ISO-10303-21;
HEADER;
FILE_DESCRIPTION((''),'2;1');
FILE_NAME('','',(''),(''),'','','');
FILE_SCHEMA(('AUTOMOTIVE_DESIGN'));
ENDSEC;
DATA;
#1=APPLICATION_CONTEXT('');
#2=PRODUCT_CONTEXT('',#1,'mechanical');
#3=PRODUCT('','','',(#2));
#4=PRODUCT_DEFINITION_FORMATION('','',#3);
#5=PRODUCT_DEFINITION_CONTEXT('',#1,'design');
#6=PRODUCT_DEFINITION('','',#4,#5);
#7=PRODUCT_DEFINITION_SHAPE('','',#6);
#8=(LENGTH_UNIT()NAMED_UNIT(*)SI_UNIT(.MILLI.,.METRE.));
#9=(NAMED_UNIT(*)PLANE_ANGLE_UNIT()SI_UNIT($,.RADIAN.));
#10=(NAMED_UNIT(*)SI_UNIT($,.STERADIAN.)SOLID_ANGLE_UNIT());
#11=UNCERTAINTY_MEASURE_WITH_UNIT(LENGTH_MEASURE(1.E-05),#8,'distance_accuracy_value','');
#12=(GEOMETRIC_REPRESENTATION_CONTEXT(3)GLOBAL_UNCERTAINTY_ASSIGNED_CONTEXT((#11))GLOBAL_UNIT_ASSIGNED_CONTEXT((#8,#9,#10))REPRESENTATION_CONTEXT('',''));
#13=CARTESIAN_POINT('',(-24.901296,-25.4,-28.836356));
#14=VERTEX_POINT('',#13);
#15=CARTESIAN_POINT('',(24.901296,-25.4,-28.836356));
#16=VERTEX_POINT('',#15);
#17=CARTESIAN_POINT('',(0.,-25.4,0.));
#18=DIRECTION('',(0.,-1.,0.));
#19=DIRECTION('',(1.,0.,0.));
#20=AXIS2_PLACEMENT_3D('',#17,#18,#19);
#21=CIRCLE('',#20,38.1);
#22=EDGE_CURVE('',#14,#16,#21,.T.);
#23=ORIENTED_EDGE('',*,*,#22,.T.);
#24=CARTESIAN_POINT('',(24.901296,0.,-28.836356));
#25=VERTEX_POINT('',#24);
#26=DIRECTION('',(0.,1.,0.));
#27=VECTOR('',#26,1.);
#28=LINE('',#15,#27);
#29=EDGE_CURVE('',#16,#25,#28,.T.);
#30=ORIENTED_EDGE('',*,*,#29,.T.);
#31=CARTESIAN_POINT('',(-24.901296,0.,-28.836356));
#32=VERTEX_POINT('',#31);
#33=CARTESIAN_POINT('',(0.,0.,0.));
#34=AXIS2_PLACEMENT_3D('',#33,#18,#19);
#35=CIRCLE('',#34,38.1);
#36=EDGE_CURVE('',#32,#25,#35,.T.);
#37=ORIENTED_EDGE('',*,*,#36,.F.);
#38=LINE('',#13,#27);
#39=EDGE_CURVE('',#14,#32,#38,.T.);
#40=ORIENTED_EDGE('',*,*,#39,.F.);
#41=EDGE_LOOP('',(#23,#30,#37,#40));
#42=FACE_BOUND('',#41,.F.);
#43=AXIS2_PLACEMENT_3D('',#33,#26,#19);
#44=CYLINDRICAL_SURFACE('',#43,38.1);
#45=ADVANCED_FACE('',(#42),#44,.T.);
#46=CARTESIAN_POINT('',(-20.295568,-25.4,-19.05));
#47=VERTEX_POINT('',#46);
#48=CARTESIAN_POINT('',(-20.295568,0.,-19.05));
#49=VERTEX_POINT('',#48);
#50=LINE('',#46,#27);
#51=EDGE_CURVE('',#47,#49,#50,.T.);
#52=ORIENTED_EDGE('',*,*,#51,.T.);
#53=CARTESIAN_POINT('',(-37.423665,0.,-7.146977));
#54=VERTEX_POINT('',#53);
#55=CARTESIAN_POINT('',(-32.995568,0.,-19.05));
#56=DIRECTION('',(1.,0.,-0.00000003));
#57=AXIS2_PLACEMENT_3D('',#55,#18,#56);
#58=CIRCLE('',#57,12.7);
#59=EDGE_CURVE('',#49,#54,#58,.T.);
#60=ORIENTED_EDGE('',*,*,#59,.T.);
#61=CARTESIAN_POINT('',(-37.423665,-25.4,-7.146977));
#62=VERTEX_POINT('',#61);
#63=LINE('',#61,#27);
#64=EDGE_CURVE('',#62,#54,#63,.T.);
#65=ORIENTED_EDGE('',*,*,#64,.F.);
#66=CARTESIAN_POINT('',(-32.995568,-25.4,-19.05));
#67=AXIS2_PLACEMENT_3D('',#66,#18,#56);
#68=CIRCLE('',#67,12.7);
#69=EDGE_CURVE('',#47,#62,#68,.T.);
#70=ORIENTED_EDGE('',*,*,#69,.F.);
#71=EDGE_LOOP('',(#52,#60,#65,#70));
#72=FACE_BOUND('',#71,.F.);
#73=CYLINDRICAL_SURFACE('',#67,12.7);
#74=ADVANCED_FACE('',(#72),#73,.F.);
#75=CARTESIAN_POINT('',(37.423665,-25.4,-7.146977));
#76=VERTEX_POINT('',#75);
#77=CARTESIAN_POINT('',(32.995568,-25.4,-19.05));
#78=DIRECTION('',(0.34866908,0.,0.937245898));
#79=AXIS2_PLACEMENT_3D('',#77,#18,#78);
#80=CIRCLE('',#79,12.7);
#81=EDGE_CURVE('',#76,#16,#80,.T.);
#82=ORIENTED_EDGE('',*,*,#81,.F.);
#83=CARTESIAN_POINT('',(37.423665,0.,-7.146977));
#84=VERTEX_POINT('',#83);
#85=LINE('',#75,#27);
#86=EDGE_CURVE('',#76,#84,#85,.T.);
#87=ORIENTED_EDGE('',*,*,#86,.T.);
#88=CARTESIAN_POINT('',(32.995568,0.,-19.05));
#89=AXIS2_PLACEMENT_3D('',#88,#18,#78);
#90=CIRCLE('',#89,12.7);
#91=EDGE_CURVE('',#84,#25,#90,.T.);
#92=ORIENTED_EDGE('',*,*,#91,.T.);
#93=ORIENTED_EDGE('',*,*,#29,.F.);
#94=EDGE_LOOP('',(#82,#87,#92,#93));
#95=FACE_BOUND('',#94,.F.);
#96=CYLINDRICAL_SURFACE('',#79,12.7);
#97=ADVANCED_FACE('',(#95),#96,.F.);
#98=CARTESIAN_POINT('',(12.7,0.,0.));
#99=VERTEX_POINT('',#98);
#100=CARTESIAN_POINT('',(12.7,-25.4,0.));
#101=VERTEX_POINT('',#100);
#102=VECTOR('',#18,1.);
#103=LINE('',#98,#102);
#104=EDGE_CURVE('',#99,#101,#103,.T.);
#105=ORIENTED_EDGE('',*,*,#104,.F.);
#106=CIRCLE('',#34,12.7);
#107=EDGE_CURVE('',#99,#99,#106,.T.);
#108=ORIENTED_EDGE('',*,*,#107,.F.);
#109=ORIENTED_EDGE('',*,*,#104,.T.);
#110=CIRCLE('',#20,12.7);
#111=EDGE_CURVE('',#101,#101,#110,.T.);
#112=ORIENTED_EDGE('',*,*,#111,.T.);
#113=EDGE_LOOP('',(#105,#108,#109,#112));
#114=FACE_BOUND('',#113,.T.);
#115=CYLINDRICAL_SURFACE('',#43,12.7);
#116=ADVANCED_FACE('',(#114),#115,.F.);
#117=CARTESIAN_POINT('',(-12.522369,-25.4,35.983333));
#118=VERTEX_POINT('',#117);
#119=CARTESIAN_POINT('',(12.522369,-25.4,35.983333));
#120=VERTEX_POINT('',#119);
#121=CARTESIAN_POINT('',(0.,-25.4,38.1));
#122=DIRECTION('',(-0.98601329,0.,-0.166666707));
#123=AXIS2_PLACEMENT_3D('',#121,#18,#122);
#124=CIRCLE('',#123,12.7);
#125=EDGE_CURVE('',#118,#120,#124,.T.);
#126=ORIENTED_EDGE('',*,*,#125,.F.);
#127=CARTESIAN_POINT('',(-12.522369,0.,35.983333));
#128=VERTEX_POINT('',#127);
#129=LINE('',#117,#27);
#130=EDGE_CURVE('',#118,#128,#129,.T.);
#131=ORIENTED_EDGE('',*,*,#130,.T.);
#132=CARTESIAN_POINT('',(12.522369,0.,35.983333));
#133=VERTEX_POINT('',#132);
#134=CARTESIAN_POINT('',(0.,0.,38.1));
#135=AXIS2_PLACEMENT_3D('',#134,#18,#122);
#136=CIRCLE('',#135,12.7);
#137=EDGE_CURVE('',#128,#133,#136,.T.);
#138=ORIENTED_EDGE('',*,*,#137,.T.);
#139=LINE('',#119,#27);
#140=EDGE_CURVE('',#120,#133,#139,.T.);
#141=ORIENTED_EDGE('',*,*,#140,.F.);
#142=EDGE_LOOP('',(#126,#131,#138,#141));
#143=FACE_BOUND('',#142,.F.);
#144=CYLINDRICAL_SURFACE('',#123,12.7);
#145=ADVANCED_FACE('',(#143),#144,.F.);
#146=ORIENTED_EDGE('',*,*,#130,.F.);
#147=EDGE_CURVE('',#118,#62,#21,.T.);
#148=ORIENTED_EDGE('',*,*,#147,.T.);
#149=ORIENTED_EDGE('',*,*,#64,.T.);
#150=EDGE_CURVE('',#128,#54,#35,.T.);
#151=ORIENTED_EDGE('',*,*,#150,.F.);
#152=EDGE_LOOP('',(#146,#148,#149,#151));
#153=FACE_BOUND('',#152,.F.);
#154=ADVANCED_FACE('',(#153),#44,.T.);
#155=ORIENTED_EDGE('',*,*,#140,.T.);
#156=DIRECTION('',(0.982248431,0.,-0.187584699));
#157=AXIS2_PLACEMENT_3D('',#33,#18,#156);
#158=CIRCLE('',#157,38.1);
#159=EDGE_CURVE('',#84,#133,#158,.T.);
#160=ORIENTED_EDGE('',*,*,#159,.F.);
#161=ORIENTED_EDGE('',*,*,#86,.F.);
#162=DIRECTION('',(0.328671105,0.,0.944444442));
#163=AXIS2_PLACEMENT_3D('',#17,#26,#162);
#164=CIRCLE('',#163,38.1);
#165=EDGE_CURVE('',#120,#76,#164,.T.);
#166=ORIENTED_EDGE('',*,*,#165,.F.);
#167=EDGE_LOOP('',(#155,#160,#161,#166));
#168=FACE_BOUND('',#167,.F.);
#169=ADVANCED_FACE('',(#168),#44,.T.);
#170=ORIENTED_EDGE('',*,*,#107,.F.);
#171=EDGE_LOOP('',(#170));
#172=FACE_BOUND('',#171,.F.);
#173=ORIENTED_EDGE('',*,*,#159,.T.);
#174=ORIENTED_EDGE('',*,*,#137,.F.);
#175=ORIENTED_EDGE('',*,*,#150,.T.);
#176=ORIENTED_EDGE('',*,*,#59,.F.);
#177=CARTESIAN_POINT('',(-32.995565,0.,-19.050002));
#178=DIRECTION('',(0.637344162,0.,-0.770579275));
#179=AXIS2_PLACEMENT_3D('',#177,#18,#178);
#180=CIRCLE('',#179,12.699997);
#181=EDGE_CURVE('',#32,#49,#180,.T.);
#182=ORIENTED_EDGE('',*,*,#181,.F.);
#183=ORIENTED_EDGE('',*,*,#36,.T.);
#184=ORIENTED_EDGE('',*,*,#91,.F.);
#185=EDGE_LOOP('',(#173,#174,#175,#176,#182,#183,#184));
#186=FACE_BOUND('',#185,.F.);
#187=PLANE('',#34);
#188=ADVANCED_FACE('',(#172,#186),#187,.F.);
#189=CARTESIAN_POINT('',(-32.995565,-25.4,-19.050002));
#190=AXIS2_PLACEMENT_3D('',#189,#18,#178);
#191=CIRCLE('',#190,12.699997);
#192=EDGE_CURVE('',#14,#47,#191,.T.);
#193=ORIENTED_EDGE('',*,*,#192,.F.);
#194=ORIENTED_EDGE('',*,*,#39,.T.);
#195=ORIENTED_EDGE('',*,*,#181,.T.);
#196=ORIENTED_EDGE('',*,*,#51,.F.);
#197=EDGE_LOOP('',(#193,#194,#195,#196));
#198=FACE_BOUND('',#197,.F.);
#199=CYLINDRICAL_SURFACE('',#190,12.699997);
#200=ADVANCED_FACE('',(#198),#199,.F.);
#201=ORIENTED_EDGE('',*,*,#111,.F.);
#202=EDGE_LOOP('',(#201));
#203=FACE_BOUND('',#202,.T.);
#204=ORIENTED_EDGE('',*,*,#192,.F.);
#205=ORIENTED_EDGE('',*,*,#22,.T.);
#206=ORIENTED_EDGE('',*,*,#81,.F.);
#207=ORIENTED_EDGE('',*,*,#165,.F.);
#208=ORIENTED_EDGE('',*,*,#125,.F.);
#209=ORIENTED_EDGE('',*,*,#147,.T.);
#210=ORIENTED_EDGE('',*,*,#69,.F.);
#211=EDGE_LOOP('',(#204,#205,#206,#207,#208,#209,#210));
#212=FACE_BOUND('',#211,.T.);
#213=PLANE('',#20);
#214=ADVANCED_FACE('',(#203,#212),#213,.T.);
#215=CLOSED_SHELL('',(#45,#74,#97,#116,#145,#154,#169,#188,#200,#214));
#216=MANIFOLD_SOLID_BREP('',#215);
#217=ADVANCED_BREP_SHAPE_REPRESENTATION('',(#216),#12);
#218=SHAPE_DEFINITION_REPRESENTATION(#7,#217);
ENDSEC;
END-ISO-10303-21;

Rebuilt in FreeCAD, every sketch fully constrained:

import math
import FreeCAD as App
import Part
import Sketcher

V = App.Vector
Q = App.Units.Quantity

doc = App.newDocument("Part")
body = doc.addObject("PartDesign::Body", "Body")

sketch1 = doc.addObject("Sketcher::SketchObject", "Sketch")
body.addObject(sketch1)
sketch1.AttachmentSupport = (doc.XZ_Plane, [""])
sketch1.MapMode = "FlatFace"
sketch1.addGeometry(Part.Circle(V(0, 0, 0), V(0, 0, 1), 38), False)
sketch1.addGeometry(Part.Circle(V(0, 0, 0), V(0, 0, 1), 13), False)
sketch1.addConstraint(Sketcher.Constraint("Coincident", 0, 3, -1, 1))
sketch1.addConstraint(Sketcher.Constraint("Coincident", 1, 3, -1, 1))
sketch1.addConstraint(Sketcher.Constraint("Diameter", 0, Q("3 in")))
sketch1.addConstraint(Sketcher.Constraint("Diameter", 1, Q("1 in")))
pad1 = doc.addObject("PartDesign::Pad", "Pad")
body.addObject(pad1)
pad1.Profile = sketch1
pad1.Length = Q("1 in")

sketch2 = doc.addObject("Sketcher::SketchObject", "Sketch001")
body.addObject(sketch2)
sketch2.AttachmentSupport = (doc.XZ_Plane, [""])
sketch2.MapMode = "FlatFace"
sketch2.AttachmentOffset = App.Placement(V(0, 0, 1 * 25.4), App.Rotation())
sketch2.addGeometry(Part.ArcOfCircle(Part.Circle(V(-0.000101, 38.100007, 0), V(0, 0, 1), 12.700101), math.radians(-9.594027), math.radians(-0.000033)), False)
sketch2.addGeometry(Part.ArcOfCircle(Part.Circle(V(0, 38.1, 0), V(0, 0, 1), 12.7), math.radians(0.000002), math.radians(189.594068)), False)
sketch2.addGeometry(Part.ArcOfCircle(Part.Circle(V(0, 38.1, 0), V(0, 0, 1), 12.7), math.radians(-170.405929), math.radians(-9.594071)), False)
sketch2.addGeometry(Part.ArcOfCircle(Part.Circle(V(-32.995568, -19.05, 0), V(0, 0, 1), 12.7), math.radians(-0.000002), math.radians(110.405932)), False)
sketch2.addGeometry(Part.ArcOfCircle(Part.Circle(V(-32.995568, -19.05, 0), V(0, 0, 1), 12.7), math.radians(110.405929), math.radians(309.594072)), False)
sketch2.addGeometry(Part.ArcOfCircle(Part.Circle(V(-32.995565, -19.050002, 0), V(0, 0, 1), 12.699997), math.radians(-50.405936), math.radians(0.000007)), False)
sketch2.addGeometry(Part.ArcOfCircle(Part.Circle(V(32.995568, -19.05, 0), V(0, 0, 1), 12.7), math.radians(69.594068), math.radians(230.405931)), False)
sketch2.addGeometry(Part.ArcOfCircle(Part.Circle(V(32.995568, -19.050001, 0), V(0, 0, 1), 12.7), math.radians(-129.594073), math.radians(0.000003)), False)
sketch2.addGeometry(Part.ArcOfCircle(Part.Circle(V(32.995566, -19.050001, 0), V(0, 0, 1), 12.700002), math.radians(0.000005), math.radians(69.594065)), False)
sketch2.addConstraint(Sketcher.Constraint("Coincident", 0, 2, 1, 1))
sketch2.addConstraint(Sketcher.Constraint("Coincident", 1, 2, 2, 1))
sketch2.addConstraint(Sketcher.Constraint("Coincident", 2, 2, 0, 1))
sketch2.addConstraint(Sketcher.Constraint("Coincident", 3, 2, 4, 1))
sketch2.addConstraint(Sketcher.Constraint("Coincident", 4, 2, 5, 1))
sketch2.addConstraint(Sketcher.Constraint("Coincident", 5, 2, 3, 1))
sketch2.addConstraint(Sketcher.Constraint("Coincident", 6, 2, 7, 1))
sketch2.addConstraint(Sketcher.Constraint("Coincident", 7, 2, 8, 1))
sketch2.addConstraint(Sketcher.Constraint("Coincident", 8, 2, 6, 1))
sketch2.addConstraint(Sketcher.Constraint("Coincident", 2, 3, 1, 3))
sketch2.addConstraint(Sketcher.Constraint("Coincident", 4, 3, 3, 3))
sketch2.addConstraint(Sketcher.Constraint("Coincident", 7, 3, 6, 3))
sketch2.addConstraint(Sketcher.Constraint("PointOnObject", 1, 3, -2))
sketch2.addConstraint(Sketcher.Constraint("Radius", 1, Q("0.5 in")))
sketch2.addConstraint(Sketcher.Constraint("Radius", 3, Q("0.5 in")))
sketch2.addConstraint(Sketcher.Constraint("Radius", 5, Q("0.4999999 in")))
sketch2.addConstraint(Sketcher.Constraint("Radius", 6, Q("0.5 in")))
sketch2.addConstraint(Sketcher.Constraint("Radius", 8, Q("0.5000001 in")))
sketch2.addConstraint(Sketcher.Constraint("DistanceY", -1, 1, 1, 3, Q("1.5 in")))
sketch2.addConstraint(Sketcher.Constraint("DistanceY", -1, 1, 0, 2, Q("1.5 in")))
sketch2.addConstraint(Sketcher.Constraint("DistanceY", 3, 3, -1, 1, Q("0.75 in")))
sketch2.addConstraint(Sketcher.Constraint("DistanceY", 6, 3, -1, 1, Q("0.75 in")))
sketch2.addConstraint(Sketcher.Constraint("DistanceY", 5, 2, -1, 1, Q("0.75 in")))
sketch2.addConstraint(Sketcher.Constraint("DistanceY", 7, 2, -1, 1, Q("0.75 in")))
sketch2.addConstraint(Sketcher.Constraint("Radius", 0, 12.700101))
sketch2.addConstraint(Sketcher.Constraint("DistanceX", 3, 3, 1, 2, 20.473199))
sketch2.addConstraint(Sketcher.Constraint("DistanceX", 3, 2, 5, 3, 4.4281))
sketch2.addConstraint(Sketcher.Constraint("DistanceX", 2, 2, 7, 2, 33.173199))
sketch2.addConstraint(Sketcher.Constraint("DistanceX", 8, 3, 8, 2, 4.428099))
sketch2.addConstraint(Sketcher.Constraint("DistanceX", 4, 3, -1, 1, 32.995568))
sketch2.addConstraint(Sketcher.Constraint("DistanceX", -1, 1, 7, 3, 32.995568))
sketch2.addConstraint(Sketcher.Constraint("DistanceX", 5, 3, 4, 2, 8.094269))
sketch2.addConstraint(Sketcher.Constraint("DistanceX", 6, 2, 8, 3, 8.09427))
pocket1 = doc.addObject("PartDesign::Pocket", "Pocket")
body.addObject(pocket1)
pocket1.Profile = sketch2
pocket1.Length = Q("1 in")

doc.recompute()
